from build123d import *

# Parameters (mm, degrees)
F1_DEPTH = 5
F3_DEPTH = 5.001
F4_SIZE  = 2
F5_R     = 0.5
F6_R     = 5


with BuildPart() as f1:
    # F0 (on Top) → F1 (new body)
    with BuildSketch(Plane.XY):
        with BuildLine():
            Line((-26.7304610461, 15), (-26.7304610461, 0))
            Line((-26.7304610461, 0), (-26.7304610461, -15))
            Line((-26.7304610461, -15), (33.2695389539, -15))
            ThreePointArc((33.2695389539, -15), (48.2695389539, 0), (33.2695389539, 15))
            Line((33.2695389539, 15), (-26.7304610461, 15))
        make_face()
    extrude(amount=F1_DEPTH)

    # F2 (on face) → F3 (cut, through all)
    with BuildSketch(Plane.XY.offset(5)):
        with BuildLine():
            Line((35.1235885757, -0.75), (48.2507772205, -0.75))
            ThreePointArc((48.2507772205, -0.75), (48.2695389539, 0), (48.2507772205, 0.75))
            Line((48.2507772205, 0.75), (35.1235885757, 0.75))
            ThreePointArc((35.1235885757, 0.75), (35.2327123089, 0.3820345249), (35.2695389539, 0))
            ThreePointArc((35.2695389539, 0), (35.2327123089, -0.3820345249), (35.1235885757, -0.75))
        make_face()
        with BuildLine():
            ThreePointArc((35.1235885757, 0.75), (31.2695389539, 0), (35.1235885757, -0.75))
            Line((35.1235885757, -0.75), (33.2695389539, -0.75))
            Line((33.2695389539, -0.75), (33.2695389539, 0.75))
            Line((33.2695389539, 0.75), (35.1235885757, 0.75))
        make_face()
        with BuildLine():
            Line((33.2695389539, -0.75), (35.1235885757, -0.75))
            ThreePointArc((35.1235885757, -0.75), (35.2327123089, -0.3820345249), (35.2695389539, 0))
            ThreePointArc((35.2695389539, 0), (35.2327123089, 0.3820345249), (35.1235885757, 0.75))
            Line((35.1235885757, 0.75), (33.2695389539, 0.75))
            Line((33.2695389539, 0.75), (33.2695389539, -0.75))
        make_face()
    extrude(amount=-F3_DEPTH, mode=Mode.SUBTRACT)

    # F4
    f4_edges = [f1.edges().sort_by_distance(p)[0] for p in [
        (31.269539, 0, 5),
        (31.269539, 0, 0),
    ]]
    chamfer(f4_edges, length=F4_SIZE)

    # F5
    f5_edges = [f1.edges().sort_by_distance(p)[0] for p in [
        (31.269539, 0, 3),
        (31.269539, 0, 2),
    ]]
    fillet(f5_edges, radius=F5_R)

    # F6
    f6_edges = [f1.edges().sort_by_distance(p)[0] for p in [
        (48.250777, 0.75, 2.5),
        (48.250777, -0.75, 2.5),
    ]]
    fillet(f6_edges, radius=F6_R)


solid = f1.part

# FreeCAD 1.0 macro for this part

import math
import FreeCAD as App
import Part
import Sketcher
Q = App.Units.Quantity


def edges_at(feature, points):
    """Names of the edges that pass closest to the given points."""
    edges = feature.Shape.Edges
    near = lambda p: min(range(len(edges)), key=lambda i: edges[i].distToShape(Part.Vertex(*p))[0])
    return sorted({f"Edge{near(p) + 1}" for p in points})

doc = App.newDocument("Part")
body = doc.addObject("PartDesign::Body", "Body")

# Sketch on XY plane
sketch1 = body.newObject("Sketcher::SketchObject", "Sketch")
sketch1.AttachmentSupport = (doc.getObject("XY_Plane"), [""])
sketch1.MapMode = "FlatFace"
sketch1.addGeometry(Part.LineSegment(App.Vector(-26.730461, 15, 0), App.Vector(-26.730461, -15, 0)), False)
sketch1.addGeometry(Part.LineSegment(App.Vector(-26.730461, -15, 0), App.Vector(33.269539, -15, 0)), False)
sketch1.addGeometry(Part.ArcOfCircle(Part.Circle(App.Vector(33.269539, 0, 0), App.Vector(0, 0, 1), 15), math.radians(-90), math.radians(90)), False)
sketch1.addGeometry(Part.LineSegment(App.Vector(33.269539, 15, 0), App.Vector(-26.730461, 15, 0)), False)
sketch1.addConstraint(Sketcher.Constraint("Coincident", 0, 2, 1, 1))
sketch1.addConstraint(Sketcher.Constraint("Tangent", 1, 2, 2, 1))
sketch1.addConstraint(Sketcher.Constraint("Tangent", 2, 2, 3, 1))
sketch1.addConstraint(Sketcher.Constraint("Coincident", 3, 2, 0, 1))
sketch1.addConstraint(Sketcher.Constraint("Vertical", 0))
sketch1.addConstraint(Sketcher.Constraint("Horizontal", 1))
sketch1.addConstraint(Sketcher.Constraint("Horizontal", 3))
sketch1.addConstraint(Sketcher.Constraint("PointOnObject", 2, 3, -1))
sketch1.addConstraint(Sketcher.Constraint("Radius", 2, Q("15 mm")))
sketch1.addConstraint(Sketcher.Constraint("DistanceX", 1, 1, 1, 2, Q("60 mm")))
sketch1.addConstraint(Sketcher.Constraint("DistanceX", -1, 1, 2, 3, Q("33.269539 mm")))
pad1 = body.newObject("PartDesign::Pad", "Pad")
pad1.Profile = sketch1
pad1.Length = 5

# Sketch on XY plane
sketch2 = body.newObject("Sketcher::SketchObject", "Sketch001")
sketch2.AttachmentSupport = (doc.getObject("XY_Plane"), [""])
sketch2.MapMode = "FlatFace"
sketch2.AttachmentOffset = App.Placement(App.Vector(0, 0, 5), App.Rotation())
sketch2.addGeometry(Part.LineSegment(App.Vector(35.123589, -0.75, 0), App.Vector(48.250777, -0.75, 0)), False)
sketch2.addGeometry(Part.ArcOfCircle(Part.Circle(App.Vector(33.269539, 0, 0), App.Vector(0, 0, 1), 15), math.radians(-2.865984), math.radians(2.865984)), False)
sketch2.addGeometry(Part.LineSegment(App.Vector(48.250777, 0.75, 0), App.Vector(35.123589, 0.75, 0)), False)
sketch2.addGeometry(Part.ArcOfCircle(Part.Circle(App.Vector(33.269539, 0, 0), App.Vector(0, 0, 1), 2), math.radians(22.024313), math.radians(337.975687)), False)
sketch2.addConstraint(Sketcher.Constraint("Coincident", 0, 2, 1, 1))
sketch2.addConstraint(Sketcher.Constraint("Coincident", 1, 2, 2, 1))
sketch2.addConstraint(Sketcher.Constraint("Coincident", 2, 2, 3, 1))
sketch2.addConstraint(Sketcher.Constraint("Coincident", 3, 2, 0, 1))
sketch2.addConstraint(Sketcher.Constraint("Horizontal", 0))
sketch2.addConstraint(Sketcher.Constraint("Horizontal", 2))
sketch2.addConstraint(Sketcher.Constraint("Coincident", 3, 3, 1, 3))
sketch2.addConstraint(Sketcher.Constraint("Symmetric", 0, 2, 1, 2, -1))
sketch2.addConstraint(Sketcher.Constraint("Radius", 1, Q("15 mm")))
sketch2.addConstraint(Sketcher.Constraint("Radius", 3, Q("2 mm")))
sketch2.addConstraint(Sketcher.Constraint("DistanceY", 0, 2, 1, 2, Q("1.5 mm")))
sketch2.addConstraint(Sketcher.Constraint("DistanceX", -1, 1, 1, 3, Q("33.269539 mm")))
pocket1 = body.newObject("PartDesign::Pocket", "Pocket")
pocket1.Profile = sketch2
pocket1.Type = "ThroughAll"
doc.recompute()

chamfer = body.newObject("PartDesign::Chamfer", "Chamfer")
chamfer.Base = (pocket1, edges_at(pocket1, [(31.27, 0, 5), (31.27, 0, 0)]))
chamfer.Size = 2
doc.recompute()

fillet = body.newObject("PartDesign::Fillet", "Fillet")
fillet.Base = (chamfer, edges_at(chamfer, [(31.27, 0, 3), (31.27, 0, 2)]))
fillet.Radius = 0.5
doc.recompute()

fillet2 = body.newObject("PartDesign::Fillet", "Fillet001")
fillet2.Base = (fillet, edges_at(fillet, [(48.251, 0.75, 2.5), (48.251, -0.75, 2.5)]))
fillet2.Radius = 5

doc.recompute()
